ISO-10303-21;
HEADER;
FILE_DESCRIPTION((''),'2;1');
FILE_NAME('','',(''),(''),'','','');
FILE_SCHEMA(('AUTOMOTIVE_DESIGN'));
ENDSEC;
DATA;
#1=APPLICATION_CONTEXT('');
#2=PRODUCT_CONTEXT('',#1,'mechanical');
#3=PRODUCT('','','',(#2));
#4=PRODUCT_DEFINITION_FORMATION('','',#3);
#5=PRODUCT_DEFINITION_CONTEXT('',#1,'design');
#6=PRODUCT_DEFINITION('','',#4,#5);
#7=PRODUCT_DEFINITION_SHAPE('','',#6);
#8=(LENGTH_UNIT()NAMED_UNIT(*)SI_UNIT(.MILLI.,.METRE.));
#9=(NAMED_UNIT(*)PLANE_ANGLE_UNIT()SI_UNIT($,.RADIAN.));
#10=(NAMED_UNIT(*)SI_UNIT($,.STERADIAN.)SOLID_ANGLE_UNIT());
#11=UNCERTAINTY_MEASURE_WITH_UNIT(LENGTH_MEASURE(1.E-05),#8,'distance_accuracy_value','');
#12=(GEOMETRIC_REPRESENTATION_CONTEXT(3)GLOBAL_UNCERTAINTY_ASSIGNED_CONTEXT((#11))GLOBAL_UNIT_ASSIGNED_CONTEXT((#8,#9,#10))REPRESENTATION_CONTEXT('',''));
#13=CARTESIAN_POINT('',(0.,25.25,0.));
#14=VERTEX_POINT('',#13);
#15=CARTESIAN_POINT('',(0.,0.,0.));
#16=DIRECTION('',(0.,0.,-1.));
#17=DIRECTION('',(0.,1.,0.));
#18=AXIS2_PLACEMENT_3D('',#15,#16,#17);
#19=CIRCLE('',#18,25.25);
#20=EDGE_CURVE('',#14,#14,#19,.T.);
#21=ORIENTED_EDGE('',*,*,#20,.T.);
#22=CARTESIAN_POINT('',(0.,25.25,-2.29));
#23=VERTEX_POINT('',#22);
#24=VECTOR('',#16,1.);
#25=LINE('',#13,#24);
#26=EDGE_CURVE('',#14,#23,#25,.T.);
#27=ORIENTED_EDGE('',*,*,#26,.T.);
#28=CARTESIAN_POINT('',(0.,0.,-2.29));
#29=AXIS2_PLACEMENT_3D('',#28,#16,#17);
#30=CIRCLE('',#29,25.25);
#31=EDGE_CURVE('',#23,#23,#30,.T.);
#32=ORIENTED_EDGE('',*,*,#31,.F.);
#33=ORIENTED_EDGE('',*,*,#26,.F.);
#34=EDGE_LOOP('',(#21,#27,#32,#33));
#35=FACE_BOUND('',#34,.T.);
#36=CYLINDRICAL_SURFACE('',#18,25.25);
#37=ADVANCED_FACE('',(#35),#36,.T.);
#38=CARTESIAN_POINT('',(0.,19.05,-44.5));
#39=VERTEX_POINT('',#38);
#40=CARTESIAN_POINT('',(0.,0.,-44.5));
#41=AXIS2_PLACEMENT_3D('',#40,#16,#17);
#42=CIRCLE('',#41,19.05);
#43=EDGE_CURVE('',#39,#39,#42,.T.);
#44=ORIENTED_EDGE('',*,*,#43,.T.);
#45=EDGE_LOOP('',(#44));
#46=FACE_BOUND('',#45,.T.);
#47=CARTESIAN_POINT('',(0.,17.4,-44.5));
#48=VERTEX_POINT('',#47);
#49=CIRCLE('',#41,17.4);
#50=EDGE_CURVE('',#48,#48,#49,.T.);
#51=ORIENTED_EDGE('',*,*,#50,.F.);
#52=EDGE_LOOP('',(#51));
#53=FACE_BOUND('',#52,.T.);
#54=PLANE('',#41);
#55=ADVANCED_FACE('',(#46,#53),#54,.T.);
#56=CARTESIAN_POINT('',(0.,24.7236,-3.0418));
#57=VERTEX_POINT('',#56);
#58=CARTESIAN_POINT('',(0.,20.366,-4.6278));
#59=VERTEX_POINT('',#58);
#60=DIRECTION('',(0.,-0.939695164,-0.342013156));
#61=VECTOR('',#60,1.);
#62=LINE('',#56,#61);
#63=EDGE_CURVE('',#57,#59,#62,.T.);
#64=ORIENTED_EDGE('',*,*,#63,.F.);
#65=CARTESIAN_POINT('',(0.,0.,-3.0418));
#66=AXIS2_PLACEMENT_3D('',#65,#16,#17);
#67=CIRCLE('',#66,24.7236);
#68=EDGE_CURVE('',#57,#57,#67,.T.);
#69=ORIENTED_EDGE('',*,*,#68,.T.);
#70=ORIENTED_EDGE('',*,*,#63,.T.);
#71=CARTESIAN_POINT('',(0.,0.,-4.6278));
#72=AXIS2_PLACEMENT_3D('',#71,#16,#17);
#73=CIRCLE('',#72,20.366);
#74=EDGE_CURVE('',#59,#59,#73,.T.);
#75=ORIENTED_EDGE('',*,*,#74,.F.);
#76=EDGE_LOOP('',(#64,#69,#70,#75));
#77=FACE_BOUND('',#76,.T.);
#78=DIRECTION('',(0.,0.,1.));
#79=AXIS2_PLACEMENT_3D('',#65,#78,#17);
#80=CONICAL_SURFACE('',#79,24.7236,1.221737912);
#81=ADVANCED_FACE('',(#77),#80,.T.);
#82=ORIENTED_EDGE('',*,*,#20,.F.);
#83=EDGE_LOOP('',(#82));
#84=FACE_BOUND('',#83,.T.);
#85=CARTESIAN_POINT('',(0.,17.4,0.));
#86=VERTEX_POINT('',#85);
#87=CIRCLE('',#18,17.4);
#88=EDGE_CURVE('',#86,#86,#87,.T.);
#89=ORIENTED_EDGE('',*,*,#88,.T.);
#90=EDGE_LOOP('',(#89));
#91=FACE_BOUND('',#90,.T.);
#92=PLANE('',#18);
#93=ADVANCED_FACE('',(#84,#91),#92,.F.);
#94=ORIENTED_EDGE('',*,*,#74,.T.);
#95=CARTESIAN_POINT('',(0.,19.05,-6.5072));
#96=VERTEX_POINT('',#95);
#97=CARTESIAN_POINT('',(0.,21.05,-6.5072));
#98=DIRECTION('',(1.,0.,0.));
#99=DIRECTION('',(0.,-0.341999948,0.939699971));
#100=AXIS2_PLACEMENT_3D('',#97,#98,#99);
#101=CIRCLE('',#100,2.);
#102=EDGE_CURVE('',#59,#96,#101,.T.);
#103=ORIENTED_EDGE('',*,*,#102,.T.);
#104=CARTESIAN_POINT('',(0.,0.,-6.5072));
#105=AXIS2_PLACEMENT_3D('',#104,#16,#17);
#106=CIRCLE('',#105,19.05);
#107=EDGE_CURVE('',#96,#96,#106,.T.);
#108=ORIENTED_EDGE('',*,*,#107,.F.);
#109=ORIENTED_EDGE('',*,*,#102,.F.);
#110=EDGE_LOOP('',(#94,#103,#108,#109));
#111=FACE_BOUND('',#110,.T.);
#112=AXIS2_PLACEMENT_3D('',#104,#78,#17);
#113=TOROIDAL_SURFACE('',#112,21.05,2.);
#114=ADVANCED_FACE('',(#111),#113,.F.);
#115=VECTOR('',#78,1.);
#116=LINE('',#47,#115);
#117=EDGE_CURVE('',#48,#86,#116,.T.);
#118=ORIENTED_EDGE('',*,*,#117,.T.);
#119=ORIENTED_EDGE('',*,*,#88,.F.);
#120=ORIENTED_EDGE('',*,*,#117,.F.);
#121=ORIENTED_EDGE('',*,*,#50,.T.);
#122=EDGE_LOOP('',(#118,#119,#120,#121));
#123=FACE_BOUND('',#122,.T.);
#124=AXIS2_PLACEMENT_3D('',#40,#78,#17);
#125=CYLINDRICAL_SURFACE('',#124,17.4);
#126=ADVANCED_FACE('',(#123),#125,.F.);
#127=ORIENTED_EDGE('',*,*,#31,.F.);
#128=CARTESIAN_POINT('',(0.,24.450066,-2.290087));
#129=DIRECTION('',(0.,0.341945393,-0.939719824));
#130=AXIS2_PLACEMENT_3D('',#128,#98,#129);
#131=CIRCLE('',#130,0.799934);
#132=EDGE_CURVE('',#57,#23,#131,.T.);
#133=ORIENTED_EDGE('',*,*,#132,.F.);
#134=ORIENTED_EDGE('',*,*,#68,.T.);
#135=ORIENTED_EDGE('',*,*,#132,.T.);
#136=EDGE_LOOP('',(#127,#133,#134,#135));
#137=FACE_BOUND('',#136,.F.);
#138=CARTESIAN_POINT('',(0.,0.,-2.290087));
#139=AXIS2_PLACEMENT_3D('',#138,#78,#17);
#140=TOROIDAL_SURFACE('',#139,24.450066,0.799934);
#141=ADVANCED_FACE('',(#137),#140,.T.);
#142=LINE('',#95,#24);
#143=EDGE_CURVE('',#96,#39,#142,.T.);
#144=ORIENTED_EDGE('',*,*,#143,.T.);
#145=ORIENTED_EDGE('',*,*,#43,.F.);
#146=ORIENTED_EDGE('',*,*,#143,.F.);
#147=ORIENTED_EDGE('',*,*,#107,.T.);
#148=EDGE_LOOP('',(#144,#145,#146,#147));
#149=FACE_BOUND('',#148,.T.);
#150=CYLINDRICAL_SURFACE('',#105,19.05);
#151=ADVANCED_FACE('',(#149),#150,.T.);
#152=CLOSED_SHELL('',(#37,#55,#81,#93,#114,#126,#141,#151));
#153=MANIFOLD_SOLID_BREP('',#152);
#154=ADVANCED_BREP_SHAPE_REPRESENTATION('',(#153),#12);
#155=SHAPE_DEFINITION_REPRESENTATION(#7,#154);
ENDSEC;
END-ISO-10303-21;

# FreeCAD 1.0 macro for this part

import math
import FreeCAD as App
import Part
import Sketcher

V = App.Vector
Q = App.Units.Quantity

doc = App.newDocument("Part")
body = doc.addObject("PartDesign::Body", "Body")

# Sketch on YZ plane
sketch1 = body.newObject("Sketcher::SketchObject", "Sketch")
sketch1.AttachmentSupport = (doc.getObject("YZ_Plane"), [""])
sketch1.MapMode = "FlatFace"
sketch1.addGeometry([
    Part.LineSegment(V(17.4, 0, 0), V(17.4, -44.5, 0)),  # 0
    Part.LineSegment(V(17.4, -44.5, 0), V(19.1, -44.5, 0)),  # 1
    Part.LineSegment(V(19.1, -44.5, 0), V(19.1, -6.5, 0)),  # 2
    Part.ArcOfCircle(Part.Circle(V(21.1, -6.5, 0), V(0, 0, 1), 2), math.radians(110), math.radians(180)),  # 3
    Part.LineSegment(V(20.4, -4.6, 0), V(24.7, -3, 0)),  # 4
    Part.ArcOfCircle(Part.Circle(V(24.4, -2.3, 0), V(0, 0, 1), 0.8), math.radians(-70), math.radians(0)),  # 5
    Part.LineSegment(V(25.2, -2.3, 0), V(25.2, 0, 0)),  # 6
    Part.LineSegment(V(25.2, 0, 0), V(17.4, 0, 0)),  # 7
], False)
sketch1.addConstraint([
    Sketcher.Constraint("Coincident", 0, 2, 1, 1),
    Sketcher.Constraint("Coincident", 1, 2, 2, 1),
    Sketcher.Constraint("Tangent", 2, 2, 3, 2),
    Sketcher.Constraint("Tangent", 3, 1, 4, 1),
    Sketcher.Constraint("Tangent", 4, 2, 5, 1),
    Sketcher.Constraint("Tangent", 5, 2, 6, 1),
    Sketcher.Constraint("Coincident", 6, 2, 7, 1),
    Sketcher.Constraint("Coincident", 7, 2, 0, 1),
    Sketcher.Constraint("Vertical", 0),
    Sketcher.Constraint("Horizontal", 1),
    Sketcher.Constraint("Vertical", 2),
    Sketcher.Constraint("Vertical", 6),
    Sketcher.Constraint("Horizontal", 7),
    Sketcher.Constraint("PointOnObject", 6, 2, -1),
    Sketcher.Constraint("Radius", 3, 2.0),
    Sketcher.Constraint("Radius", 5, 0.8),
    Sketcher.Constraint("Angle", 4, Q("19.9996 deg")),
    Sketcher.Constraint("DistanceY", 0, 2, 0, 1, 44.5),
    Sketcher.Constraint("DistanceX", 1, 1, 1, 2, 1.65),
    Sketcher.Constraint("DistanceY", 6, 1, 6, 2, 2.29),
    Sketcher.Constraint("DistanceX", 7, 2, 7, 1, 7.85),
    Sketcher.Constraint("DistanceX", -1, 1, 0, 2, 17.4),
])
revolution = body.newObject("PartDesign::Revolution", "Revolution")
revolution.Profile = sketch1
revolution.ReferenceAxis = (sketch1, ["V_Axis"])
revolution.Angle = 360

doc.recompute()
